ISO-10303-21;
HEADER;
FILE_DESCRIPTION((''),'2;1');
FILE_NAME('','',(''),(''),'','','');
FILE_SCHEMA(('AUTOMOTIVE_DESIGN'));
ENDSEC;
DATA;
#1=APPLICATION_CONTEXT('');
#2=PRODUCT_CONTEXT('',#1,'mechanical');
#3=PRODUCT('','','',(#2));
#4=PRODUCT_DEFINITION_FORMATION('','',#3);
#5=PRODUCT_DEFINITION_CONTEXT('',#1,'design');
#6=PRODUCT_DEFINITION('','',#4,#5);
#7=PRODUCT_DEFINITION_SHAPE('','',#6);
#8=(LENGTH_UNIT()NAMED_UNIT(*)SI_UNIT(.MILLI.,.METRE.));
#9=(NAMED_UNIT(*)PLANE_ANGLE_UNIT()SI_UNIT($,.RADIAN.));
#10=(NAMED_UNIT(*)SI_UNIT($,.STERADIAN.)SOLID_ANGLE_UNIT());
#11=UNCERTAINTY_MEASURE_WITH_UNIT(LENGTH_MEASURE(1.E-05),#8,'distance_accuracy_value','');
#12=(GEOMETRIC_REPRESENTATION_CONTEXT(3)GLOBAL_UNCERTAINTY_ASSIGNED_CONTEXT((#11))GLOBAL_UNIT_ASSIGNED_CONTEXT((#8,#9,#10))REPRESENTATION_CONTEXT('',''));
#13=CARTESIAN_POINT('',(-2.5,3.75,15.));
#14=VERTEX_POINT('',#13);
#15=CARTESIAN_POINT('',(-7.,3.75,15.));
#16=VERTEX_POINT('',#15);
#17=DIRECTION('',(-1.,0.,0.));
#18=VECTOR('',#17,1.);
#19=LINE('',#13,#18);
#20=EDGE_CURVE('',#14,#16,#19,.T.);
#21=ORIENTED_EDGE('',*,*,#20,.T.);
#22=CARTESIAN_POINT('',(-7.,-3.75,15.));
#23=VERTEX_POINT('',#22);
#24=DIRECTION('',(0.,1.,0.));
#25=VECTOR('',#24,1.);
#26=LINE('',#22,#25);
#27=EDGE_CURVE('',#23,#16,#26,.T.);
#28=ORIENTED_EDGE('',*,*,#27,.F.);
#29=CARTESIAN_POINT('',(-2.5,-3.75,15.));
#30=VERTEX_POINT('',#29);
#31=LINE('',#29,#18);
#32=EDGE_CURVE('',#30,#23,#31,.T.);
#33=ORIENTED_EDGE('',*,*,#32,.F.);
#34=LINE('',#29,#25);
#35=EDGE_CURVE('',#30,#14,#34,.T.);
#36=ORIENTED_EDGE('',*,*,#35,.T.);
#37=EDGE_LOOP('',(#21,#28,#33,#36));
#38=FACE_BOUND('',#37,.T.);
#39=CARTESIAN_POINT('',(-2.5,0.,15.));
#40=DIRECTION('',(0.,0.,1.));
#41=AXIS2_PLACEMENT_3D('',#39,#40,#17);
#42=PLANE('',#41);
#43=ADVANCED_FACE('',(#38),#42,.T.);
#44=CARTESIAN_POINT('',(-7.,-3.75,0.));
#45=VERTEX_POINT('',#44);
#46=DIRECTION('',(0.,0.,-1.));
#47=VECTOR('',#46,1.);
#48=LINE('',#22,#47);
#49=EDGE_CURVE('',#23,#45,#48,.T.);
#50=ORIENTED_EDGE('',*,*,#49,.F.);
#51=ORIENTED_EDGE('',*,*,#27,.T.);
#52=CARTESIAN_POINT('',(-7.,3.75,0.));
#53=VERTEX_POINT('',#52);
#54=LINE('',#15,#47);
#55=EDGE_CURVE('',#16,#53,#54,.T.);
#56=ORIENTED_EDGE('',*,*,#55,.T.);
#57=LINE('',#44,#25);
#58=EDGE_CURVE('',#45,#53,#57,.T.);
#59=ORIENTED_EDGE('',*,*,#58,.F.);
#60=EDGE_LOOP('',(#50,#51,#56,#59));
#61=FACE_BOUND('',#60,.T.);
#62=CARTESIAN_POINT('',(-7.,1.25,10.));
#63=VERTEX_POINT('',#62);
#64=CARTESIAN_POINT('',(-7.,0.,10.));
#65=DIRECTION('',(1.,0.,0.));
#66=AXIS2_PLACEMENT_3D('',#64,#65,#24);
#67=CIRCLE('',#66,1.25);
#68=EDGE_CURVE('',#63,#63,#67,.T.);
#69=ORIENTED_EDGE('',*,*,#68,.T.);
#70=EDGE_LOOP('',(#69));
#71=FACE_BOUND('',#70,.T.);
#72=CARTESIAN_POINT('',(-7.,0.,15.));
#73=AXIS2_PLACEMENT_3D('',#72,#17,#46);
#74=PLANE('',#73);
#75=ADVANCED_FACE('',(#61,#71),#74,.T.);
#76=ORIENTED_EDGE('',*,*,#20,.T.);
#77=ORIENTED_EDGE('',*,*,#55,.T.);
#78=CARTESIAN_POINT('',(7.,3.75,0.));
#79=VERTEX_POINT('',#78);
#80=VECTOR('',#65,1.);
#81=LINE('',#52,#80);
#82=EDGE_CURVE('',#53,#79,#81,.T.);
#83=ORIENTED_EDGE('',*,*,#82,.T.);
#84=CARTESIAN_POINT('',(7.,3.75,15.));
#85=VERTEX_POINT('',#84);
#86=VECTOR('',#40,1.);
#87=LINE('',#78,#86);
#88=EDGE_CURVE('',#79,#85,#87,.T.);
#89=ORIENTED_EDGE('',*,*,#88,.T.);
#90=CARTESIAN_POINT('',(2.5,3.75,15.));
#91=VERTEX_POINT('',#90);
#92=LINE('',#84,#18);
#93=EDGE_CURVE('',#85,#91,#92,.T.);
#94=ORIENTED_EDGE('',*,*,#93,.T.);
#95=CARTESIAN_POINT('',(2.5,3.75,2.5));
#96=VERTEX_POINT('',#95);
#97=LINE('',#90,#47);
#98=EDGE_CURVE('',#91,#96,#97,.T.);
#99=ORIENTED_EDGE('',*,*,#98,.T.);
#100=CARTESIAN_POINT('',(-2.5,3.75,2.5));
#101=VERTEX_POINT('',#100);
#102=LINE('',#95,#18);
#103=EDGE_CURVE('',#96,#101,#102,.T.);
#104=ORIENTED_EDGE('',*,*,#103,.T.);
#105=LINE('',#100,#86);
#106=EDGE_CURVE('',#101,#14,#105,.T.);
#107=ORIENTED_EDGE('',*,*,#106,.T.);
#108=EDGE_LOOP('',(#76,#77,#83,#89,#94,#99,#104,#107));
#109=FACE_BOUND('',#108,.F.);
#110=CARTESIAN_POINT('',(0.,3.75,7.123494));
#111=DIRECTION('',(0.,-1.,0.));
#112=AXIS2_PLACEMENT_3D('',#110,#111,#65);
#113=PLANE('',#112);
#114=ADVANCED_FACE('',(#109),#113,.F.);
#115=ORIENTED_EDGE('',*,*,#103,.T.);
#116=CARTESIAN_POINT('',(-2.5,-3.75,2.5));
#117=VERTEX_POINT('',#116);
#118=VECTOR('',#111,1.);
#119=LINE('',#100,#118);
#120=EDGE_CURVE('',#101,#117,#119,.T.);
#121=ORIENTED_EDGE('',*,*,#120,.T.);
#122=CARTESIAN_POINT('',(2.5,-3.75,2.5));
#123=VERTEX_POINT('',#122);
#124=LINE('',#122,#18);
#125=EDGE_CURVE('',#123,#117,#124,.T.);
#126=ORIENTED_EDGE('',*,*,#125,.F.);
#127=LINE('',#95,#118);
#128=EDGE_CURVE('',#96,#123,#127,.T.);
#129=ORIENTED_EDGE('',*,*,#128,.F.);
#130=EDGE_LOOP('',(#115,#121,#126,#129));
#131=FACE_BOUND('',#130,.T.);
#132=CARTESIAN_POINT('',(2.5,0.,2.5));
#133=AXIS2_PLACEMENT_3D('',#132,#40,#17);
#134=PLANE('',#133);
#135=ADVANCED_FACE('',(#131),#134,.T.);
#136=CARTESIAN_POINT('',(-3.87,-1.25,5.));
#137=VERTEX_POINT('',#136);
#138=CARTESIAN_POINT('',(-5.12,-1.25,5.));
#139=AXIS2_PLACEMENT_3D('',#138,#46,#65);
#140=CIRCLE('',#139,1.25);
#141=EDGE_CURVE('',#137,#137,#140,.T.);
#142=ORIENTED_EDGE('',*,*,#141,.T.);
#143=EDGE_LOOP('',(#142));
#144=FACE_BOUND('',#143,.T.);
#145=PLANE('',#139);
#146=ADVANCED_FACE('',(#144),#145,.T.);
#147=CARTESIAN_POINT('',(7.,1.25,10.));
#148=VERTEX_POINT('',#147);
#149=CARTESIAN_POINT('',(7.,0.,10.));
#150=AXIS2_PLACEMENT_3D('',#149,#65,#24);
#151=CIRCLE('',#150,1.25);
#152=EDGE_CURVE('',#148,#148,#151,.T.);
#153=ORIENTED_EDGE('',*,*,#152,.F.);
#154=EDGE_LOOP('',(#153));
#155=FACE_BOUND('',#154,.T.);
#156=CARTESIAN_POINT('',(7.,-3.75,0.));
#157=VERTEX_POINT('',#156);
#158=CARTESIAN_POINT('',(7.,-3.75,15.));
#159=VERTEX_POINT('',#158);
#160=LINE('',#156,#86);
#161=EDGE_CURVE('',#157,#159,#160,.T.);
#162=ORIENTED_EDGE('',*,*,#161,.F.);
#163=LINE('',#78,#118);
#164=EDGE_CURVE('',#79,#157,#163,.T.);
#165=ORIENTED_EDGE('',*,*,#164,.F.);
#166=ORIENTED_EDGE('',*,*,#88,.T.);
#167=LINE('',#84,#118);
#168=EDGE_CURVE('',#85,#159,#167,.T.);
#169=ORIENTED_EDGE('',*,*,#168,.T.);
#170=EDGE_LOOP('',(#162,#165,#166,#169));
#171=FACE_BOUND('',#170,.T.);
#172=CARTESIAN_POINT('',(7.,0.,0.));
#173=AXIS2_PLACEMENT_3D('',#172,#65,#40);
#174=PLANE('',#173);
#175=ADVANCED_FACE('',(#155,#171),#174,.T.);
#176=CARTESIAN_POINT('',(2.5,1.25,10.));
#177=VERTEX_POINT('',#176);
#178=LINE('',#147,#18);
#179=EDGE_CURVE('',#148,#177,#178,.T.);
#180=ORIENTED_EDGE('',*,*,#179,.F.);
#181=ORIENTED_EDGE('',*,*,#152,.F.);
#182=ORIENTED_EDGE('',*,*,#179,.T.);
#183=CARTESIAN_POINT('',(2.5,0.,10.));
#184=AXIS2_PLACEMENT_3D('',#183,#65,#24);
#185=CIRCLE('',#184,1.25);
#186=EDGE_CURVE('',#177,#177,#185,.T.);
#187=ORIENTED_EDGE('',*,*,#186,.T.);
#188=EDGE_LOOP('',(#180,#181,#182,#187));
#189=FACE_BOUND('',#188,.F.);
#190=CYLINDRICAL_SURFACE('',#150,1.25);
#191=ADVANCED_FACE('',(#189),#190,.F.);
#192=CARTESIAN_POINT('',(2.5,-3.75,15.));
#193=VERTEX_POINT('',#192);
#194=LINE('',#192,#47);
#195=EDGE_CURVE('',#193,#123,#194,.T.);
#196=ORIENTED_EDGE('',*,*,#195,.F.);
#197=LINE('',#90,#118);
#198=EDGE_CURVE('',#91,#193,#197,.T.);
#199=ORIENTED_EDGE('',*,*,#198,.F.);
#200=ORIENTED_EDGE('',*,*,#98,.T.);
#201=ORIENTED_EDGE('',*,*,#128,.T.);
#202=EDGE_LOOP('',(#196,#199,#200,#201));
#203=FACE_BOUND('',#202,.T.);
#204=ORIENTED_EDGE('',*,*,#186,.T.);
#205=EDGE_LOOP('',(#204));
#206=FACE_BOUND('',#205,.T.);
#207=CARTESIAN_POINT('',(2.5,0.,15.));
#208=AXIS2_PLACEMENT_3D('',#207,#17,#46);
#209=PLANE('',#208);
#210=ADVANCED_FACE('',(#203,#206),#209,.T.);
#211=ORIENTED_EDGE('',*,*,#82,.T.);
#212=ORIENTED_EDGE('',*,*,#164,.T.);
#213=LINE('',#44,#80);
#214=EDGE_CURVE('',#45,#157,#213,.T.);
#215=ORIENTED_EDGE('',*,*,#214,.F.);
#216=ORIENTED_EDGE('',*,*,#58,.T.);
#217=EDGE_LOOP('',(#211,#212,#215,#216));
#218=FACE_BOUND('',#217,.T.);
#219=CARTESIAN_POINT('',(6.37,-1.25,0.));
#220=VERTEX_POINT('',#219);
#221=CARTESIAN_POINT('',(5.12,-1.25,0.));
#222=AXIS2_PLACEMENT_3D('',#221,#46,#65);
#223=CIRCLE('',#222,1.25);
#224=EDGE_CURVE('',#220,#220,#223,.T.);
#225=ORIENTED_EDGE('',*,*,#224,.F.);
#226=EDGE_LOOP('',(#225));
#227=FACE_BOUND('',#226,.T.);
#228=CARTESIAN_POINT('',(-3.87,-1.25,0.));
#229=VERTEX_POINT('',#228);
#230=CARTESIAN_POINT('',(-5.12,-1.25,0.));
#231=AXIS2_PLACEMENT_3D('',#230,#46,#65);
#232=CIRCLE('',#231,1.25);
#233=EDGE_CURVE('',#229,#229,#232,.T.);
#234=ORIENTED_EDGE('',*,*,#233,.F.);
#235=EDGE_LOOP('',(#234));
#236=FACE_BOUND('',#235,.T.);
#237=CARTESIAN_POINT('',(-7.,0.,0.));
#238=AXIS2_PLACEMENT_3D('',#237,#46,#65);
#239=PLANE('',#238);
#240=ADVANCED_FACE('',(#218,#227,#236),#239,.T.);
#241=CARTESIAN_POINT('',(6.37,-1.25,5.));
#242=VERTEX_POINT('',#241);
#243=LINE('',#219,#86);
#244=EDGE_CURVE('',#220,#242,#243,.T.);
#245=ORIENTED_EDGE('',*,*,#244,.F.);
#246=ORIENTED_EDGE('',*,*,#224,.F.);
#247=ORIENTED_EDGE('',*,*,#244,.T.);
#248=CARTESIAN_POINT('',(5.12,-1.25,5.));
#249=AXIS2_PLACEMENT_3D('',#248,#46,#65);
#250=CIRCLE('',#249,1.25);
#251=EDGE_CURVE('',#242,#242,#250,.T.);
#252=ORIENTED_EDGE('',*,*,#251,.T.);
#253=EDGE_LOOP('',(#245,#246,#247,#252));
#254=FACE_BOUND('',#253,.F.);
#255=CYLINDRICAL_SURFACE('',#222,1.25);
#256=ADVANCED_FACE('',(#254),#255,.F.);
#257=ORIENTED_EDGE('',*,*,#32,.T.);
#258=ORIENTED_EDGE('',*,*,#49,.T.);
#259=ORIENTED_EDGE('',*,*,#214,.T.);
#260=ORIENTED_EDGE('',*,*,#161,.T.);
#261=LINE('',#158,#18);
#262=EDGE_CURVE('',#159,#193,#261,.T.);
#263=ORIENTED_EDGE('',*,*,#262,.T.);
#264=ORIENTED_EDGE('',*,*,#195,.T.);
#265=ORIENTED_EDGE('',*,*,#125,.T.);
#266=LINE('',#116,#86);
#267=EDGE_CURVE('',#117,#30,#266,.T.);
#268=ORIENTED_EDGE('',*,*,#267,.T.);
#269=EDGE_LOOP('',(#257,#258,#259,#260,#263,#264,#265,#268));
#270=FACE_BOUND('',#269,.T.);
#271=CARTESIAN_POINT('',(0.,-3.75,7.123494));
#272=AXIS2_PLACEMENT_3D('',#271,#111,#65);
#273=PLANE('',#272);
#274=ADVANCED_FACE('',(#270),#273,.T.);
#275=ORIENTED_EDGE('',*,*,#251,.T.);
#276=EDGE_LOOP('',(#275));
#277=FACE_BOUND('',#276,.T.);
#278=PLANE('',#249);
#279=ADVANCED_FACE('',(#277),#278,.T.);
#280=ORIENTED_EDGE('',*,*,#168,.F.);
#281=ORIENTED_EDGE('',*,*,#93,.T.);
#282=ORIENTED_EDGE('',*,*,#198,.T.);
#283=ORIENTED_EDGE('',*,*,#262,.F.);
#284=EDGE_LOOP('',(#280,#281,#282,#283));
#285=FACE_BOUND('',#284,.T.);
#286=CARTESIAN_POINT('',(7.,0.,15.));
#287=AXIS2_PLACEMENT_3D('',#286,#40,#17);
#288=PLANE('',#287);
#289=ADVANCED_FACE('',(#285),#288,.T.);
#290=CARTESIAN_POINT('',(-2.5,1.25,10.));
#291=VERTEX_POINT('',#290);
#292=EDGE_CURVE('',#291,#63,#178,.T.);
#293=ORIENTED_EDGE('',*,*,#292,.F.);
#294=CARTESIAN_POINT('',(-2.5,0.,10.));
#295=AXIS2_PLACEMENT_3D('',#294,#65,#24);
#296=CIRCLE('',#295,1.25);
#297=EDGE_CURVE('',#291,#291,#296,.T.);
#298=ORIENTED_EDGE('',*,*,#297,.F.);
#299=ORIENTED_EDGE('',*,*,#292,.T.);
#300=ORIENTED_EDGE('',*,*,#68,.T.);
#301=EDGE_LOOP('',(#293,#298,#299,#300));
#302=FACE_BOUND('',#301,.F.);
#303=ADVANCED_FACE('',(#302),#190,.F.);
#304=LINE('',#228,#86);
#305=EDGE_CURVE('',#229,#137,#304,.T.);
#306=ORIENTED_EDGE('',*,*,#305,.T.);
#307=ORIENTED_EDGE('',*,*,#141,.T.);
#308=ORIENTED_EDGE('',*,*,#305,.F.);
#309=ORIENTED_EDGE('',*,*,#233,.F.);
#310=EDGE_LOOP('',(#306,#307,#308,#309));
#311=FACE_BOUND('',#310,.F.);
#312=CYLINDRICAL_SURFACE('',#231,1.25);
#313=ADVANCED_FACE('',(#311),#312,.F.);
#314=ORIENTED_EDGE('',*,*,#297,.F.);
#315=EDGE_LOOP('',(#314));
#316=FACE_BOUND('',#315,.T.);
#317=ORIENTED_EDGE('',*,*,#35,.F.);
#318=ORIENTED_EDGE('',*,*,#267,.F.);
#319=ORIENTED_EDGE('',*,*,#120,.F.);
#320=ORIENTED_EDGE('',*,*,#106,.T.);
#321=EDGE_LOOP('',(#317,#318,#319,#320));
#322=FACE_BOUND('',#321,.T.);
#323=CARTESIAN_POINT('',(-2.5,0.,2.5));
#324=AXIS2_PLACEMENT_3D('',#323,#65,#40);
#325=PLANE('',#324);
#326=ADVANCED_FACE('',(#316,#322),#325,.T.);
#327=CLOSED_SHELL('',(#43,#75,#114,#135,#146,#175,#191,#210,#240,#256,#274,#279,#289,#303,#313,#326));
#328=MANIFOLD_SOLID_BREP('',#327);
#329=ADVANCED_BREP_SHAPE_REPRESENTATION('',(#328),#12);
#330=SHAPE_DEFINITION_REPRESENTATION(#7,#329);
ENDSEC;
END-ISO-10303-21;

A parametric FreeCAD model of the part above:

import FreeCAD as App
import Part
import Sketcher
from FreeCAD import Vector

doc = App.newDocument("Part")
params = doc.addObject("Spreadsheet::Sheet", "Params")
for row, (alias, value) in enumerate([
    ("sketch1_width", "14 mm"),
    ("sketch1_width2", "5 mm"),
    ("sketch1_height", "15 mm"),
    ("sketch1_height2", "12.5 mm"),
    ("pad1_length", "7.5 mm"),
    ("sketch2_diameter", "2.5 mm"),
    ("pocket1_length", "25 mm"),
    ("sketch3_diameter", "2.5 mm"),
    ("pocket2_length", "5 mm"),
], start=1):
    params.set(f"A{row}", alias)
    params.set(f"B{row}", "=" + value)
    params.setAlias(f"B{row}", alias)

body = doc.addObject("PartDesign::Body", "Body")

# Sketch on XZ plane
sketch1 = body.newObject("Sketcher::SketchObject", "Sketch")
sketch1.AttachmentSupport = (doc.getObject("XZ_Plane"), [""])
sketch1.MapMode = "FlatFace"
sketch1.addGeometry([
    Part.LineSegment(Vector(-7, 0, 0), Vector(7, 0, 0)),  # 0
    Part.LineSegment(Vector(7, 0, 0), Vector(7, 15, 0)),  # 1
    Part.LineSegment(Vector(7, 15, 0), Vector(2.5, 15, 0)),  # 2
    Part.LineSegment(Vector(2.5, 15, 0), Vector(2.5, 2.5, 0)),  # 3
    Part.LineSegment(Vector(2.5, 2.5, 0), Vector(-2.5, 2.5, 0)),  # 4
    Part.LineSegment(Vector(-2.5, 2.5, 0), Vector(-2.5, 15, 0)),  # 5
    Part.LineSegment(Vector(-2.5, 15, 0), Vector(-7, 15, 0)),  # 6
    Part.LineSegment(Vector(-7, 15, 0), Vector(-7, 0, 0)),  # 7
], False)
sketch1.addConstraint([
    Sketcher.Constraint("Coincident", 0, 2, 1, 1),
    Sketcher.Constraint("Coincident", 1, 2, 2, 1),
    Sketcher.Constraint("Coincident", 2, 2, 3, 1),
    Sketcher.Constraint("Coincident", 3, 2, 4, 1),
    Sketcher.Constraint("Coincident", 4, 2, 5, 1),
    Sketcher.Constraint("Coincident", 5, 2, 6, 1),
    Sketcher.Constraint("Coincident", 6, 2, 7, 1),
    Sketcher.Constraint("Coincident", 7, 2, 0, 1),
    Sketcher.Constraint("Horizontal", 0),
    Sketcher.Constraint("Vertical", 1),
    Sketcher.Constraint("Horizontal", 2),
    Sketcher.Constraint("Vertical", 3),
    Sketcher.Constraint("Horizontal", 4),
    Sketcher.Constraint("Vertical", 5),
    Sketcher.Constraint("Horizontal", 6),
    Sketcher.Constraint("Vertical", 7),
    Sketcher.Constraint("Symmetric", 0, 2, 7, 2, -1, 1),
    Sketcher.Constraint("Symmetric", 2, 2, 5, 2, -2),
    Sketcher.Constraint("DistanceX", 0, 1, 0, 2, 14.0),
    Sketcher.Constraint("DistanceX", 4, 2, 4, 1, 5.0),
    Sketcher.Constraint("DistanceY", 1, 1, 1, 2, 15.0),
    Sketcher.Constraint("DistanceY", 3, 2, 3, 1, 12.5),
])
sketch1.setExpression("Constraints[18]", "Params.sketch1_width")
sketch1.setExpression("Constraints[19]", "Params.sketch1_width2")
sketch1.setExpression("Constraints[20]", "Params.sketch1_height")
sketch1.setExpression("Constraints[21]", "Params.sketch1_height2")
pad1 = body.newObject("PartDesign::Pad", "Pad")
pad1.Profile = sketch1
pad1.setExpression("Length", "Params.pad1_length")
pad1.Midplane = True

# Sketch on YZ plane
sketch2 = body.newObject("Sketcher::SketchObject", "Sketch001")
sketch2.AttachmentSupport = (doc.getObject("YZ_Plane"), [""])
sketch2.MapMode = "FlatFace"
sketch2.AttachmentOffset = App.Placement(Vector(0, 0, 7), App.Rotation())
sketch2.addGeometry(Part.Circle(Vector(0, 10, 0), Vector(0, 0, 1), 1.25), False)
sketch2.addConstraint([
    Sketcher.Constraint("PointOnObject", 0, 3, -2),
    Sketcher.Constraint("Diameter", 0, 2.5),
    Sketcher.Constraint("DistanceY", -1, 1, 0, 3, 10.0),
])
sketch2.setExpression("Constraints[1]", "Params.sketch2_diameter")
pocket1 = body.newObject("PartDesign::Pocket", "Pocket")
pocket1.Profile = sketch2
pocket1.setExpression("Length", "Params.pocket1_length")

# Sketch on XY plane
sketch3 = body.newObject("Sketcher::SketchObject", "Sketch002")
sketch3.AttachmentSupport = (doc.getObject("XY_Plane"), [""])
sketch3.MapMode = "FlatFace"
sketch3.addGeometry([
    Part.Circle(Vector(5.12, -1.25, 0), Vector(0, 0, 1), 1.25),
    Part.Circle(Vector(-5.12, -1.25, 0), Vector(0, 0, 1), 1.25),
], False)
sketch3.addConstraint([
    Sketcher.Constraint("Equal", 0, 1),
    Sketcher.Constraint("Symmetric", 0, 3, 1, 3, -2),
    Sketcher.Constraint("Diameter", 0, 2.5),
    Sketcher.Constraint("DistanceX", -1, 1, 0, 3, 5.12),
    Sketcher.Constraint("DistanceY", 0, 3, -1, 1, 1.25),
])
sketch3.setExpression("Constraints[2]", "Params.sketch3_diameter")
pocket2 = body.newObject("PartDesign::Pocket", "Pocket001")
pocket2.Profile = sketch3
pocket2.setExpression("Length", "Params.pocket2_length")
pocket2.Reversed = True

doc.recompute()
